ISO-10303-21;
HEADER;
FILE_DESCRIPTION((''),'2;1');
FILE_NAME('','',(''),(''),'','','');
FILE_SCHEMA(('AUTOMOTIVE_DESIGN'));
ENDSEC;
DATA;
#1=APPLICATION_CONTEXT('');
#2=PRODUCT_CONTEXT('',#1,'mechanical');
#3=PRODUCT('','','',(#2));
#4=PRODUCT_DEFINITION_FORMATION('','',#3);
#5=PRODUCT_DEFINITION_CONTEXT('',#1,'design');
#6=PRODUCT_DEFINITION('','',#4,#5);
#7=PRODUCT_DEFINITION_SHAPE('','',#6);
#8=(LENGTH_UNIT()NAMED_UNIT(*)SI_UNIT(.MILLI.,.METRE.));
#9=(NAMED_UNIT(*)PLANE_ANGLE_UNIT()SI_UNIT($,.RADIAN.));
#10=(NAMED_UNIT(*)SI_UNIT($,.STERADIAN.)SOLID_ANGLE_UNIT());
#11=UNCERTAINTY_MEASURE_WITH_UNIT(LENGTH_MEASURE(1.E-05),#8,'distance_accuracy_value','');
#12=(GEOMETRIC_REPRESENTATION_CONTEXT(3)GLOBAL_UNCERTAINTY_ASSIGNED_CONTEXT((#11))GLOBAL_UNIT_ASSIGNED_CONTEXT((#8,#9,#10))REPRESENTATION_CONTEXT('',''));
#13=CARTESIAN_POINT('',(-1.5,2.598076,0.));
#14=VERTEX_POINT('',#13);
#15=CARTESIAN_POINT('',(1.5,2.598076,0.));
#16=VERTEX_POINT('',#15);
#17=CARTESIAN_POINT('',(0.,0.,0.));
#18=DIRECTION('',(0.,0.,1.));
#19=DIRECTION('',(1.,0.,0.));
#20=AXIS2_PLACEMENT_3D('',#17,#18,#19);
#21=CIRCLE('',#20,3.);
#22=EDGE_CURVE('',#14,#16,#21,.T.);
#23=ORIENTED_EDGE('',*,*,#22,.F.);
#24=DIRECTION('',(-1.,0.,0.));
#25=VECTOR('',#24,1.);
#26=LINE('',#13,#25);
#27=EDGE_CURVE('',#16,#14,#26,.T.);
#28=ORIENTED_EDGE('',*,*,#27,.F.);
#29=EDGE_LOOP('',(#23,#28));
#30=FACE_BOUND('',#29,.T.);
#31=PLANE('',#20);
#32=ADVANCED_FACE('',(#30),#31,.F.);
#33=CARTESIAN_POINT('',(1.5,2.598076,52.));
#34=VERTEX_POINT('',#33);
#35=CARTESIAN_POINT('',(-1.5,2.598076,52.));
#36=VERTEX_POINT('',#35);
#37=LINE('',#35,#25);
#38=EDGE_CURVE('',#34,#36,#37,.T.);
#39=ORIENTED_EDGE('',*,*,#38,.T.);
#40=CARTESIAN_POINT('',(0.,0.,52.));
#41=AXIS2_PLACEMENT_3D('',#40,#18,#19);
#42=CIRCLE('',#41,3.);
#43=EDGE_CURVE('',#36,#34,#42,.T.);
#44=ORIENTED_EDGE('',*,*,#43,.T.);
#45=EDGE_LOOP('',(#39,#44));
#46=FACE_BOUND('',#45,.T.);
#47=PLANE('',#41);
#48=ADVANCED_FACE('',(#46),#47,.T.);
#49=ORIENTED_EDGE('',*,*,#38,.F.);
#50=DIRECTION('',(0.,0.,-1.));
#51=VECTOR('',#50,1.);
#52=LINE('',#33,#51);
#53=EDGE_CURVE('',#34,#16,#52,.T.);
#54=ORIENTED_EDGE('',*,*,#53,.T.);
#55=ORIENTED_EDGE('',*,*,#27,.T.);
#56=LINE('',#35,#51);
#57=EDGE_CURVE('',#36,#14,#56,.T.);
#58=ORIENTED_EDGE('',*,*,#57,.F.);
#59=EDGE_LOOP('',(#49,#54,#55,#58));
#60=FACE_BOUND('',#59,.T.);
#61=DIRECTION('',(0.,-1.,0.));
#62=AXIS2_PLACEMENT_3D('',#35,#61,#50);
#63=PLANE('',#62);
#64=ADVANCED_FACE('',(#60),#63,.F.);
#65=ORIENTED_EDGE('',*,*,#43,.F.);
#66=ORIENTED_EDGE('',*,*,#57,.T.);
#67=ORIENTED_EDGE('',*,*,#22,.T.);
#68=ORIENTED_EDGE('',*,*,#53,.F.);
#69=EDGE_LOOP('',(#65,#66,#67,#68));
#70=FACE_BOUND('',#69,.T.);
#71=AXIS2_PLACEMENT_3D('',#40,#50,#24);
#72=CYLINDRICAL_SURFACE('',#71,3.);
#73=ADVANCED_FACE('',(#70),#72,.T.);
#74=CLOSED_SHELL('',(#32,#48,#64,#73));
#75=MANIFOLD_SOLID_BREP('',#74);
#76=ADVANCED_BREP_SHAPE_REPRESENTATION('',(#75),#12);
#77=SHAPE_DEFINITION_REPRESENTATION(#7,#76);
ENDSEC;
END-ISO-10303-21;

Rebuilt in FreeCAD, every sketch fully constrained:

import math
import FreeCAD as App
import Part
import Sketcher

V = App.Vector
Q = App.Units.Quantity

doc = App.newDocument("Part")
body = doc.addObject("PartDesign::Body", "Body")

# Sketch on XY plane
sketch1 = doc.addObject("Sketcher::SketchObject", "Sketch")
body.addObject(sketch1)
sketch1.AttachmentSupport = (doc.XY_Plane, [""])
sketch1.MapMode = "FlatFace"
sketch1.addGeometry([
    Part.LineSegment(V(1.5, 2.6, 0), V(-1.5, 2.6, 0)),
    Part.ArcOfCircle(Part.Circle(V(0, 0, 0), V(0, 0, 1), 3), math.radians(120), math.radians(420)),
], False)
sketch1.addConstraint([
    Sketcher.Constraint("Coincident", 0, 1, 1, 2),
    Sketcher.Constraint("Coincident", 1, 1, 0, 2),
    Sketcher.Constraint("Horizontal", 0),
    Sketcher.Constraint("Coincident", 1, 3, -1, 1),
    Sketcher.Constraint("Radius", 1, Q("3 mm")),
    Sketcher.Constraint("DistanceX", 0, 2, 0, 1, Q("3 mm")),
])
pad1 = doc.addObject("PartDesign::Pad", "Pad")
body.addObject(pad1)
pad1.Profile = sketch1
pad1.Length = 52

doc.recompute()
